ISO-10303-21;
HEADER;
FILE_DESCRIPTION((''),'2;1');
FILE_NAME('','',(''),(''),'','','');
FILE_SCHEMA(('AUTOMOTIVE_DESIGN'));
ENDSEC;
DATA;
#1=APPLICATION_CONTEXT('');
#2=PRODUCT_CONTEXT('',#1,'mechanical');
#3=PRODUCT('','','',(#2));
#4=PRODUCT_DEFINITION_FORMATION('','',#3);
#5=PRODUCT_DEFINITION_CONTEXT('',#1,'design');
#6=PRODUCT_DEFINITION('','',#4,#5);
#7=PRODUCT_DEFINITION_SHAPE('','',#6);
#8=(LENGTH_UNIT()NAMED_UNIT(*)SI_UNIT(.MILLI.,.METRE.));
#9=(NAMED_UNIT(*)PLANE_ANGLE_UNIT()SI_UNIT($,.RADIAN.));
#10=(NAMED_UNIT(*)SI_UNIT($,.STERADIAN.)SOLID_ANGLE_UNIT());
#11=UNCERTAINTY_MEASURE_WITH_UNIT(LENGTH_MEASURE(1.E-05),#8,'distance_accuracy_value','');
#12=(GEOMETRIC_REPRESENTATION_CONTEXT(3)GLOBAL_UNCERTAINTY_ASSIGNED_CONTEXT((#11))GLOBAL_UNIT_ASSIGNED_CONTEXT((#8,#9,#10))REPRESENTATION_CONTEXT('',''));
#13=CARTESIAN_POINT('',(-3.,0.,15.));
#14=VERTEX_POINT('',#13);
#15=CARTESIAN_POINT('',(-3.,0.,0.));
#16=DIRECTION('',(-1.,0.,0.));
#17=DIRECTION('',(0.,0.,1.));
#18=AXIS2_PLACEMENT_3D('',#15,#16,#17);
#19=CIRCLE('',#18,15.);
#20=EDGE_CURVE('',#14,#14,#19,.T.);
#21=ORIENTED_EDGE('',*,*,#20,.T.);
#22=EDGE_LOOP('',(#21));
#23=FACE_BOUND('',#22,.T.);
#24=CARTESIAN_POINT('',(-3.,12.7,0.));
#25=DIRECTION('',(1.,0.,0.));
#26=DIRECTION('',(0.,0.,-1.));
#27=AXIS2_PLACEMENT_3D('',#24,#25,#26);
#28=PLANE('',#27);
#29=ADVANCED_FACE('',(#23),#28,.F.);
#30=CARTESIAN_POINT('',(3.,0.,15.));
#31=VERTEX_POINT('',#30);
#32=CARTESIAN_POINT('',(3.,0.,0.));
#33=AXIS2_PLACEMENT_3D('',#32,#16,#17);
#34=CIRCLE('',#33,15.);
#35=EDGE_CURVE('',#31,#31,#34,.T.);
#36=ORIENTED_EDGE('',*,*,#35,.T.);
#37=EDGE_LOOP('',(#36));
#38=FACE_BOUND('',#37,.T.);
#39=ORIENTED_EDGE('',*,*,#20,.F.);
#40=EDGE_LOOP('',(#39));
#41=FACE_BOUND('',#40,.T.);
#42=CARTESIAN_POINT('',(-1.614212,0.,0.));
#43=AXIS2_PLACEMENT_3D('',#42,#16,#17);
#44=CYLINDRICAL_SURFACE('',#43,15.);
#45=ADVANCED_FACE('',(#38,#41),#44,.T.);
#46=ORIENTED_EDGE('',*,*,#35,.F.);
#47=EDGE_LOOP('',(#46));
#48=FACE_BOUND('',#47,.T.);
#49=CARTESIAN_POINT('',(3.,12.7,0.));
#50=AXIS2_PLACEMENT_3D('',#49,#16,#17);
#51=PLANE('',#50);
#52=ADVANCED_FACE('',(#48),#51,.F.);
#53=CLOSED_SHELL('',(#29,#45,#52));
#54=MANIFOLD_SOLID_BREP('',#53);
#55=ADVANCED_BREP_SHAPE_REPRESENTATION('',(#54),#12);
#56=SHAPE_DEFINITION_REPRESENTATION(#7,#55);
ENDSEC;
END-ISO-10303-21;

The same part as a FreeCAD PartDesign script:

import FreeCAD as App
import Part
import Sketcher
from FreeCAD import Vector


def add_polygon(sketch, points):
    """Adds a closed chain of lines whose ends are joined by coincident constraints."""
    first, n = sketch.GeometryCount, len(points)
    for a, b in zip(points, points[1:] + points[:1]):
        sketch.addGeometry(Part.LineSegment(App.Vector(*a, 0), App.Vector(*b, 0)), False)
    for i in range(n):
        sketch.addConstraint(Sketcher.Constraint("Coincident", first + i, 2, first + (i + 1) % n, 1))

doc = App.newDocument("Part")
body = doc.addObject("PartDesign::Body", "Body")

sketch1 = body.newObject("Sketcher::SketchObject", "Sketch")
sketch1.AttachmentSupport = (doc.getObject("XY_Plane"), [""])
sketch1.MapMode = "FlatFace"
add_polygon(sketch1, [(-3, 13), (-3, 0), (3, 0), (3, 13)])
sketch1.addConstraint([
    Sketcher.Constraint("Vertical", 0),
    Sketcher.Constraint("Horizontal", 1),
    Sketcher.Constraint("Vertical", 2),
    Sketcher.Constraint("Horizontal", 3),
    Sketcher.Constraint("Symmetric", 0, 2, 1, 2, -1, 1),
    Sketcher.Constraint("DistanceX", 1, 1, 1, 2, 6.0),
    Sketcher.Constraint("DistanceY", 0, 2, 0, 1, 12.7),
])
revolution = body.newObject("PartDesign::Revolution", "Revolution")
revolution.Profile = sketch1
revolution.ReferenceAxis = (sketch1, ["H_Axis"])
revolution.Angle = 360

sketch2 = body.newObject("Sketcher::SketchObject", "Sketch001")
sketch2.AttachmentSupport = (doc.getObject("XY_Plane"), [""])
sketch2.MapMode = "FlatFace"
add_polygon(sketch2, [(-3, 15), (-3, 12.7), (3, 12.7), (3, 15)])
sketch2.addConstraint([
    Sketcher.Constraint("Vertical", 0),
    Sketcher.Constraint("Horizontal", 1),
    Sketcher.Constraint("Vertical", 2),
    Sketcher.Constraint("Horizontal", 3),
    Sketcher.Constraint("DistanceX", 1, 1, 1, 2, 6.0),
    Sketcher.Constraint("DistanceY", 0, 2, 0, 1, 2.3),
    Sketcher.Constraint("DistanceX", 0, 2, -1, 1, 3.0),
    Sketcher.Constraint("DistanceY", -1, 1, 2, 2, 15.0),
])
revolution2 = body.newObject("PartDesign::Revolution", "Revolution001")
revolution2.Profile = sketch2
revolution2.ReferenceAxis = (sketch2, ["H_Axis"])
revolution2.Angle = 360

doc.recompute()
